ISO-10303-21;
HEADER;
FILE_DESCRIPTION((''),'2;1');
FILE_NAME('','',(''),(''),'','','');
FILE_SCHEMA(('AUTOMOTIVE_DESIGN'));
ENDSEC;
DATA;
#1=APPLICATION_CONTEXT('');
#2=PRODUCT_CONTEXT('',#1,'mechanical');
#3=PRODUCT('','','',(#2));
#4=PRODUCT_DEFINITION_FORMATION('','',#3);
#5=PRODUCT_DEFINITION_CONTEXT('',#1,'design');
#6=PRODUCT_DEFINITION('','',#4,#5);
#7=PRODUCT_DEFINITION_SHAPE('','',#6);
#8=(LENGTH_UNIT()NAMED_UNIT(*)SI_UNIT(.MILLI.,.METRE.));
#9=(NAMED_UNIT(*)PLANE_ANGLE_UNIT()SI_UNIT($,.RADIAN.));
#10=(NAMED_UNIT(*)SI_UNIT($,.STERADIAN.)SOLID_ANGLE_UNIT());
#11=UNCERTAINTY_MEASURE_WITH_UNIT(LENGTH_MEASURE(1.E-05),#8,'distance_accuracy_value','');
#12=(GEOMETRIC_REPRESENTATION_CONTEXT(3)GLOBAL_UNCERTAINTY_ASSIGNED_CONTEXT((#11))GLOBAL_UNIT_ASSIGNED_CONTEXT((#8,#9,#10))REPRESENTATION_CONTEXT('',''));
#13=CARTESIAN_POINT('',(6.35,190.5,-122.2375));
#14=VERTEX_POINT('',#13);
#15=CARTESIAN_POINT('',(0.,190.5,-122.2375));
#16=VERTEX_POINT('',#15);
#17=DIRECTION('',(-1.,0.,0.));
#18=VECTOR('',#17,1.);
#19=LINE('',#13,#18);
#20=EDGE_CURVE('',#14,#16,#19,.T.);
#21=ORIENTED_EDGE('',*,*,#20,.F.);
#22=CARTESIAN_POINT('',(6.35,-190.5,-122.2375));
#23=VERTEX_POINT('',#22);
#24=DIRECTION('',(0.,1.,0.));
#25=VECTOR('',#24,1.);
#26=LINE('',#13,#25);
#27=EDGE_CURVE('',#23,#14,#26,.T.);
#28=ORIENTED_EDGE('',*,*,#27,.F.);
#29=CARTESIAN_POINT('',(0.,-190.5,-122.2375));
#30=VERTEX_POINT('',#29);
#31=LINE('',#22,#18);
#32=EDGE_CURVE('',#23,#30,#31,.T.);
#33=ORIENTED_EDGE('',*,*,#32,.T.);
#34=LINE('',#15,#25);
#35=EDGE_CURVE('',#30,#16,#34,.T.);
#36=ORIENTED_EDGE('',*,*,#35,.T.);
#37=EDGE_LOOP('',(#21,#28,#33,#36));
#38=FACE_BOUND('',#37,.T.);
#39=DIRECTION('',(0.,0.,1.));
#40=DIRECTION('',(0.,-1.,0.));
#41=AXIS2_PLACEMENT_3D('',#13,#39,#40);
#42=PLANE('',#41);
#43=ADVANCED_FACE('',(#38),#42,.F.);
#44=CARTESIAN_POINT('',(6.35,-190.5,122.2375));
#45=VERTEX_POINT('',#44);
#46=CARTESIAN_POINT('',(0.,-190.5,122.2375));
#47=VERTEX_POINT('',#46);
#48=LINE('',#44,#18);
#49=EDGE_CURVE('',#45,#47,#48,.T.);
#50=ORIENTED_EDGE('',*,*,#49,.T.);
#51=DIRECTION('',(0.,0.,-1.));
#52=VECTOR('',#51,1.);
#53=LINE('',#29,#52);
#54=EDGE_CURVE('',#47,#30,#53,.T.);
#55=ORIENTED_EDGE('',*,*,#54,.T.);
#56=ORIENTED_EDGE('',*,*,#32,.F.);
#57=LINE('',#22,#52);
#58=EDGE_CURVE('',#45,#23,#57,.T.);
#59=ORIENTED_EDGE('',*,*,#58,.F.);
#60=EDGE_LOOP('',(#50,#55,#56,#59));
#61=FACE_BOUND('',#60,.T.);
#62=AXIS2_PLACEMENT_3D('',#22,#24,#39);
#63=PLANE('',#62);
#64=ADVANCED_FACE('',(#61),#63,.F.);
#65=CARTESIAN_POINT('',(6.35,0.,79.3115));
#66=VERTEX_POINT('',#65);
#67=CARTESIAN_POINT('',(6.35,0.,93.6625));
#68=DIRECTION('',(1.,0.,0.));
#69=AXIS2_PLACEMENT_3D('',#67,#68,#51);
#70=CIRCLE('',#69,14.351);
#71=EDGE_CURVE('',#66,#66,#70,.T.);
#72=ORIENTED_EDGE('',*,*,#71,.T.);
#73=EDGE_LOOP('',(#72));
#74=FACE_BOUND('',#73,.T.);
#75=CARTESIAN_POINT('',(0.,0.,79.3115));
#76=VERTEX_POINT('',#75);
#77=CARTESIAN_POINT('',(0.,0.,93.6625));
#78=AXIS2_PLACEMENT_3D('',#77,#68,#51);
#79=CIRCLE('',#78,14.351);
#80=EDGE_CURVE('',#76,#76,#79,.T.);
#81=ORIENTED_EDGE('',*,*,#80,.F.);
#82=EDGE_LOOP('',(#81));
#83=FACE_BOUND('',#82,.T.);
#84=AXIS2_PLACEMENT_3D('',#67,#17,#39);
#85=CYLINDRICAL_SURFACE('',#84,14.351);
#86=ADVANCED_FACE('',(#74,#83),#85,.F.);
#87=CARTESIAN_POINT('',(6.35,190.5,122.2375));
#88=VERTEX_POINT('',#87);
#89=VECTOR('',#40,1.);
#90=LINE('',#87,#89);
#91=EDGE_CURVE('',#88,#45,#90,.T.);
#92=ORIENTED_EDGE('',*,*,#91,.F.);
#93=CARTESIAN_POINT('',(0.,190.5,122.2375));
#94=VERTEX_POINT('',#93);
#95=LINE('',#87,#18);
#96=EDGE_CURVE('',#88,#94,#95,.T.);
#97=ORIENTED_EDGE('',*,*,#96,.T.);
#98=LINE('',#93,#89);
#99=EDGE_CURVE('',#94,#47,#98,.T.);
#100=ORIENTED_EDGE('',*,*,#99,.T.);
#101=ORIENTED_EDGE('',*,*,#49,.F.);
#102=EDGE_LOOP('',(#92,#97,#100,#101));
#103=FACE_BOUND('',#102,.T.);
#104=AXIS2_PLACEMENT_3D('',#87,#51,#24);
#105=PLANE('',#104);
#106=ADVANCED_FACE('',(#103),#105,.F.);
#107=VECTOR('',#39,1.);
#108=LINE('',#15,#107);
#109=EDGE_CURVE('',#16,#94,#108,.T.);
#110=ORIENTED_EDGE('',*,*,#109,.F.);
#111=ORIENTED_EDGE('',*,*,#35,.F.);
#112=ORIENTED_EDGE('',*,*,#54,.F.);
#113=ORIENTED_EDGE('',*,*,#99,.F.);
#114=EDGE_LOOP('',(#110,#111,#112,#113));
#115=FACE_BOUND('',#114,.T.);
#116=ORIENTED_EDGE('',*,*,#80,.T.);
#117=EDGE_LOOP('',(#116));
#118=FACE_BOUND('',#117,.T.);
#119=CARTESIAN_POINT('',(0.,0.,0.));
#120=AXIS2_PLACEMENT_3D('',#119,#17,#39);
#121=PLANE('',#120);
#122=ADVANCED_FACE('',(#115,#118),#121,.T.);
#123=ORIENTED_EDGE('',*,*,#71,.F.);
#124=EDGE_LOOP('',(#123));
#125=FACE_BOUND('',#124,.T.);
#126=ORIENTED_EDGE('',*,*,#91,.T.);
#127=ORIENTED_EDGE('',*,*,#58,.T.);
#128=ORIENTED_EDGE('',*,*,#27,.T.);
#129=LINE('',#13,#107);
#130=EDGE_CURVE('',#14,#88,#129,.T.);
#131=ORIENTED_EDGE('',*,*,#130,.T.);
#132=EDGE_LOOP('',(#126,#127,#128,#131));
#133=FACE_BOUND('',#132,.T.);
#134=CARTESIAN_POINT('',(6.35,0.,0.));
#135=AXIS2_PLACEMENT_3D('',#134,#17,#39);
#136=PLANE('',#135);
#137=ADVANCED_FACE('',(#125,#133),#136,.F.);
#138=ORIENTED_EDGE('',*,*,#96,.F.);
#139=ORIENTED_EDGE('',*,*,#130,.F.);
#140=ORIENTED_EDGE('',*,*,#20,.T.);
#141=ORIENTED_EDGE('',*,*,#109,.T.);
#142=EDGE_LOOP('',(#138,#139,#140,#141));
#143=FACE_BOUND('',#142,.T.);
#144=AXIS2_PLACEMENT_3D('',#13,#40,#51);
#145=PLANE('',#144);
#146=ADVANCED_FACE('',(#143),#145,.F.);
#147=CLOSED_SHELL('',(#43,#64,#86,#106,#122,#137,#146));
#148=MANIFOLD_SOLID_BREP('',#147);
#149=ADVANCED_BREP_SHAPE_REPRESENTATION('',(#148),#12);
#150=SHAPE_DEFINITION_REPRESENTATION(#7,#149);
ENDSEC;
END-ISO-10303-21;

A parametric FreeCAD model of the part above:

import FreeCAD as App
import Part
import Sketcher
from FreeCAD import Vector
Q = App.Units.Quantity


def add_polygon(sketch, points):
    """Adds a closed chain of lines whose ends are joined by coincident constraints."""
    first, n = sketch.GeometryCount, len(points)
    for a, b in zip(points, points[1:] + points[:1]):
        sketch.addGeometry(Part.LineSegment(App.Vector(*a, 0), App.Vector(*b, 0)), False)
    for i in range(n):
        sketch.addConstraint(Sketcher.Constraint("Coincident", first + i, 2, first + (i + 1) % n, 1))

doc = App.newDocument("Part")
params = doc.addObject("Spreadsheet::Sheet", "Params")
for row, (alias, value) in enumerate([
    ("sketch1_diameter", "1.13 in"),
    ("sketch1_width", "15 in"),
    ("sketch1_height", "9.625 in"),
    ("pad1_length", "0.25 in"),
], start=1):
    params.set(f"A{row}", alias)
    params.set(f"B{row}", "=" + value)
    params.setAlias(f"B{row}", alias)

body = doc.addObject("PartDesign::Body", "Body")

# Sketch on YZ plane
sketch1 = doc.addObject("Sketcher::SketchObject", "Sketch")
body.addObject(sketch1)
sketch1.AttachmentSupport = (doc.YZ_Plane, [""])
sketch1.MapMode = "FlatFace"
add_polygon(sketch1, [(190, 122), (-190, 122), (-190, -122), (190, -122)])  # lines 0-3
sketch1.addGeometry(Part.Circle(Vector(0, 94, 0), Vector(0, 0, 1), 14), False)  # 4
sketch1.addConstraint(Sketcher.Constraint("Horizontal", 0))
sketch1.addConstraint(Sketcher.Constraint("Vertical", 1))
sketch1.addConstraint(Sketcher.Constraint("Horizontal", 2))
sketch1.addConstraint(Sketcher.Constraint("Vertical", 3))
sketch1.addConstraint(Sketcher.Constraint("Symmetric", 0, 2, 2, 2, -1, 1))
sketch1.addConstraint(Sketcher.Constraint("PointOnObject", 4, 3, -2))
sketch1.addConstraint(Sketcher.Constraint("Diameter", 4, Q("1.13 in")))
sketch1.addConstraint(Sketcher.Constraint("DistanceX", 0, 2, 0, 1, Q("15 in")))
sketch1.addConstraint(Sketcher.Constraint("DistanceY", 1, 2, 4, 3, Q("8.5 in")))
sketch1.addConstraint(Sketcher.Constraint("DistanceY", 1, 2, 1, 1, Q("9.625 in")))
sketch1.setExpression("Constraints[10]", "Params.sketch1_diameter")
sketch1.setExpression("Constraints[11]", "Params.sketch1_width")
sketch1.setExpression("Constraints[13]", "Params.sketch1_height")
pad1 = doc.addObject("PartDesign::Pad", "Pad")
body.addObject(pad1)
pad1.Profile = sketch1
pad1.setExpression("Length", "Params.pad1_length")

doc.recompute()
